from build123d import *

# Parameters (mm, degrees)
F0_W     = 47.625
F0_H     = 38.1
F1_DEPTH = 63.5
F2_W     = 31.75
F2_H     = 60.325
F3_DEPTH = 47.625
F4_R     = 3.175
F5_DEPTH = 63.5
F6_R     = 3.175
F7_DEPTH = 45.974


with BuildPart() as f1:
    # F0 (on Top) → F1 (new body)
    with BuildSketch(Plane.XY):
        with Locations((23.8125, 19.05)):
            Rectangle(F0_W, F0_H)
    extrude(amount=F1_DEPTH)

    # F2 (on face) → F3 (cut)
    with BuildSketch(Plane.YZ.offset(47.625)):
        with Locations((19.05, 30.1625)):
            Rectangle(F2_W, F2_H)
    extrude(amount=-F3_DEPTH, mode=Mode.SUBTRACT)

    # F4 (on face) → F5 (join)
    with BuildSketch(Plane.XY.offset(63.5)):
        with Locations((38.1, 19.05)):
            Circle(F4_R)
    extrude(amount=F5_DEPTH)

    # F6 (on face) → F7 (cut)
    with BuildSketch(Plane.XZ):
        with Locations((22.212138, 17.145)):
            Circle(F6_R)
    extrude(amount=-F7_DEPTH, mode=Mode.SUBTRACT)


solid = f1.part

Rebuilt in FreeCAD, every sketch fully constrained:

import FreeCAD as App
import Part
import Sketcher
from FreeCAD import Vector
Q = App.Units.Quantity

doc = App.newDocument("Part")
params = doc.addObject("Spreadsheet::Sheet", "Params")
for row, (alias, value) in enumerate([
    ("sketch1_height", "1.5 in"),
    ("sketch1_width", "1.875 in"),
    ("pad1_length", "2.5 in"),
    ("sketch2_width", "1.25 in"),
    ("sketch2_height", "2.375 in"),
    ("pocket1_length", "1.875 in"),
    ("sketch3_diameter", "0.25 in"),
    ("pad2_length", "2.5 in"),
    ("sketch4_diameter", "0.25 in"),
    ("pocket2_length", "1.81 in"),
], start=1):
    params.set(f"A{row}", alias)
    params.set(f"B{row}", "=" + value)
    params.setAlias(f"B{row}", alias)

body = doc.addObject("PartDesign::Body", "Body")

# Sketch on XY plane
sketch1 = body.newObject("Sketcher::SketchObject", "Sketch")
sketch1.AttachmentSupport = (doc.getObject("XY_Plane"), [""])
sketch1.MapMode = "FlatFace"
sketch1.addGeometry([
    Part.LineSegment(Vector(0, 38, 0), Vector(0, 0, 0)),
    Part.LineSegment(Vector(0, 0, 0), Vector(48, 0, 0)),
    Part.LineSegment(Vector(48, 0, 0), Vector(48, 38, 0)),
    Part.LineSegment(Vector(48, 38, 0), Vector(0, 38, 0)),
], False)
sketch1.addConstraint([
    Sketcher.Constraint("Coincident", 0, 2, 1, 1),
    Sketcher.Constraint("Coincident", 1, 2, 2, 1),
    Sketcher.Constraint("Coincident", 2, 2, 3, 1),
    Sketcher.Constraint("Coincident", 3, 2, 0, 1),
    Sketcher.Constraint("Vertical", 0),
    Sketcher.Constraint("Horizontal", 1),
    Sketcher.Constraint("Vertical", 2),
    Sketcher.Constraint("Horizontal", 3),
    Sketcher.Constraint("Coincident", 0, 2, -1, 1),
    Sketcher.Constraint("DistanceY", 0, 2, 0, 1, Q("1.5 in")),
    Sketcher.Constraint("DistanceX", 1, 1, 1, 2, Q("1.875 in")),
])
sketch1.setExpression("Constraints[9]", "Params.sketch1_height")
sketch1.setExpression("Constraints[10]", "Params.sketch1_width")
pad1 = body.newObject("PartDesign::Pad", "Pad")
pad1.Profile = sketch1
pad1.setExpression("Length", "Params.pad1_length")

# Sketch on YZ plane
sketch2 = body.newObject("Sketcher::SketchObject", "Sketch001")
sketch2.AttachmentSupport = (doc.getObject("YZ_Plane"), [""])
sketch2.MapMode = "FlatFace"
sketch2.AttachmentOffset = App.Placement(Vector(0, 0, 1.875 * 25.4), App.Rotation())
sketch2.addGeometry([
    Part.LineSegment(Vector(3, 60, 0), Vector(3, 0, 0)),
    Part.LineSegment(Vector(3, 0, 0), Vector(35, 0, 0)),
    Part.LineSegment(Vector(35, 0, 0), Vector(35, 60, 0)),
    Part.LineSegment(Vector(35, 60, 0), Vector(3, 60, 0)),
], False)
sketch2.addConstraint([
    Sketcher.Constraint("Coincident", 0, 2, 1, 1),
    Sketcher.Constraint("Coincident", 1, 2, 2, 1),
    Sketcher.Constraint("Coincident", 2, 2, 3, 1),
    Sketcher.Constraint("Coincident", 3, 2, 0, 1),
    Sketcher.Constraint("Vertical", 0),
    Sketcher.Constraint("Horizontal", 1),
    Sketcher.Constraint("Vertical", 2),
    Sketcher.Constraint("Horizontal", 3),
    Sketcher.Constraint("PointOnObject", 0, 2, -1),
    Sketcher.Constraint("DistanceX", 1, 1, 1, 2, Q("1.25 in")),
    Sketcher.Constraint("DistanceY", 0, 2, 0, 1, Q("2.375 in")),
    Sketcher.Constraint("DistanceX", -1, 1, 0, 2, Q("0.125 in")),
])
sketch2.setExpression("Constraints[9]", "Params.sketch2_width")
sketch2.setExpression("Constraints[10]", "Params.sketch2_height")
pocket1 = body.newObject("PartDesign::Pocket", "Pocket")
pocket1.Profile = sketch2
pocket1.setExpression("Length", "Params.pocket1_length")

# Sketch on XY plane
sketch3 = body.newObject("Sketcher::SketchObject", "Sketch002")
sketch3.AttachmentSupport = (doc.getObject("XY_Plane"), [""])
sketch3.MapMode = "FlatFace"
sketch3.AttachmentOffset = App.Placement(Vector(0, 0, 2.5 * 25.4), App.Rotation())
sketch3.addGeometry(Part.Circle(Vector(38.1, 19.1, 0), Vector(0, 0, 1), 3.2), False)
sketch3.addConstraint([
    Sketcher.Constraint("Diameter", 0, Q("0.25 in")),
    Sketcher.Constraint("DistanceX", -1, 1, 0, 3, Q("1.5 in")),
    Sketcher.Constraint("DistanceY", -1, 1, 0, 3, Q("0.75 in")),
])
sketch3.setExpression("Constraints[0]", "Params.sketch3_diameter")
pad2 = body.newObject("PartDesign::Pad", "Pad001")
pad2.Profile = sketch3
pad2.setExpression("Length", "Params.pad2_length")

# Sketch on XZ plane
sketch4 = body.newObject("Sketcher::SketchObject", "Sketch003")
sketch4.AttachmentSupport = (doc.getObject("XZ_Plane"), [""])
sketch4.MapMode = "FlatFace"
sketch4.addGeometry(Part.Circle(Vector(22.2, 17.1, 0), Vector(0, 0, 1), 3.2), False)
sketch4.addConstraint([
    Sketcher.Constraint("Diameter", 0, Q("0.25 in")),
    Sketcher.Constraint("DistanceY", -1, 1, 0, 3, Q("0.675 in")),
    Sketcher.Constraint("DistanceX", -1, 1, 0, 3, 22.212138),
])
sketch4.setExpression("Constraints[0]", "Params.sketch4_diameter")
pocket2 = body.newObject("PartDesign::Pocket", "Pocket001")
pocket2.Profile = sketch4
pocket2.setExpression("Length", "Params.pocket2_length")

doc.recompute()
